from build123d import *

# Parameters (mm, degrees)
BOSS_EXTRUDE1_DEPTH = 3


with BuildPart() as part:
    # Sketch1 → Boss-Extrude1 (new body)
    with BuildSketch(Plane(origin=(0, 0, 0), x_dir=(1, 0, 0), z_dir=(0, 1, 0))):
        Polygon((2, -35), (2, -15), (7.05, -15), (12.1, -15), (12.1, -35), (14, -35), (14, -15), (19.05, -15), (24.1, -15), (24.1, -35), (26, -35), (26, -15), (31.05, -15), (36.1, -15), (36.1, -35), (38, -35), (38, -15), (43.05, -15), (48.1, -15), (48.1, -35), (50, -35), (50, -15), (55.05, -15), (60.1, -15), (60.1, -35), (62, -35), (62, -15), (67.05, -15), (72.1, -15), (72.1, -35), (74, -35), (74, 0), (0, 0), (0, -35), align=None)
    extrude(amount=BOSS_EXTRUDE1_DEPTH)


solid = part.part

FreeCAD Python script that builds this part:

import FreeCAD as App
import Part
import Sketcher


def add_polygon(sketch, points):
    """Adds a closed chain of lines whose ends are joined by coincident constraints."""
    first, n = sketch.GeometryCount, len(points)
    for a, b in zip(points, points[1:] + points[:1]):
        sketch.addGeometry(Part.LineSegment(App.Vector(*a, 0), App.Vector(*b, 0)), False)
    for i in range(n):
        sketch.addConstraint(Sketcher.Constraint("Coincident", first + i, 2, first + (i + 1) % n, 1))

doc = App.newDocument("Part")
body = doc.addObject("PartDesign::Body", "Body")

# Sketch on XZ plane
sketch1 = doc.addObject("Sketcher::SketchObject", "Sketch")
body.addObject(sketch1)
sketch1.AttachmentSupport = (doc.XZ_Plane, [""])
sketch1.MapMode = "FlatFace"
add_polygon(sketch1, [(2, 35), (2, 15), (12.1, 15), (12.1, 35), (14, 35), (14, 15), (24.1, 15), (24.1, 35), (26, 35), (26, 15), (36.1, 15), (36.1, 35), (38, 35), (38, 15), (48.1, 15), (48.1, 35), (50, 35), (50, 15), (60.1, 15), (60.1, 35), (62, 35), (62, 15), (72.1, 15), (72.1, 35), (74, 35), (74, 0), (0, 0), (0, 35)])  # lines 0-27
sketch1.addConstraint([
    Sketcher.Constraint("Vertical", 0),
    Sketcher.Constraint("Horizontal", 1),
    Sketcher.Constraint("Vertical", 2),
    Sketcher.Constraint("Horizontal", 3),
    Sketcher.Constraint("Vertical", 4),
    Sketcher.Constraint("Horizontal", 5),
    Sketcher.Constraint("Vertical", 6),
    Sketcher.Constraint("Horizontal", 7),
    Sketcher.Constraint("Vertical", 8),
    Sketcher.Constraint("Horizontal", 9),
    Sketcher.Constraint("Vertical", 10),
    Sketcher.Constraint("Horizontal", 11),
    Sketcher.Constraint("Vertical", 12),
    Sketcher.Constraint("Horizontal", 13),
    Sketcher.Constraint("Vertical", 14),
    Sketcher.Constraint("Horizontal", 15),
    Sketcher.Constraint("Vertical", 16),
    Sketcher.Constraint("Horizontal", 17),
    Sketcher.Constraint("Vertical", 18),
    Sketcher.Constraint("Horizontal", 19),
    Sketcher.Constraint("Vertical", 20),
    Sketcher.Constraint("Horizontal", 21),
    Sketcher.Constraint("Vertical", 22),
    Sketcher.Constraint("Horizontal", 23),
    Sketcher.Constraint("Vertical", 24),
    Sketcher.Constraint("Horizontal", 25),
    Sketcher.Constraint("Vertical", 26),
    Sketcher.Constraint("Horizontal", 27),
    Sketcher.Constraint("Coincident", 25, 2, -1, 1),
    Sketcher.Constraint("Horizontal", 1, 2, 4, 2),
    Sketcher.Constraint("Horizontal", 3, 2, 6, 2),
    Sketcher.Constraint("Horizontal", 5, 2, 8, 2),
    Sketcher.Constraint("Horizontal", 7, 2, 10, 2),
    Sketcher.Constraint("Horizontal", 9, 2, 12, 2),
    Sketcher.Constraint("Horizontal", 11, 2, 14, 2),
    Sketcher.Constraint("Horizontal", 13, 2, 16, 2),
    Sketcher.Constraint("Horizontal", 15, 2, 18, 2),
    Sketcher.Constraint("Horizontal", 17, 2, 20, 2),
    Sketcher.Constraint("Horizontal", 19, 2, 22, 2),
    Sketcher.Constraint("Horizontal", 23, 2, 26, 2),
    Sketcher.Constraint("Equal", 1, 5),
    Sketcher.Constraint("Equal", 3, 7),
    Sketcher.Constraint("Equal", 5, 9),
    Sketcher.Constraint("Equal", 7, 11),
    Sketcher.Constraint("Equal", 9, 13),
    Sketcher.Constraint("Equal", 11, 15),
    Sketcher.Constraint("Equal", 13, 17),
    Sketcher.Constraint("Equal", 15, 19),
    Sketcher.Constraint("Equal", 17, 21),
    Sketcher.Constraint("Equal", 19, 23),
    Sketcher.Constraint("DistanceX", 25, 2, 25, 1, 74.0),
    Sketcher.Constraint("DistanceX", 27, 1, 27, 2, 2.0),
    Sketcher.Constraint("DistanceY", 0, 2, 0, 1, 20.0),
    Sketcher.Constraint("DistanceY", 24, 2, 24, 1, 35.0),
    Sketcher.Constraint("DistanceX", 1, 1, 1, 2, 10.1),
])
pad1 = doc.addObject("PartDesign::Pad", "Pad")
body.addObject(pad1)
pad1.Profile = sketch1
pad1.Length = 3
pad1.Reversed = True

doc.recompute()
